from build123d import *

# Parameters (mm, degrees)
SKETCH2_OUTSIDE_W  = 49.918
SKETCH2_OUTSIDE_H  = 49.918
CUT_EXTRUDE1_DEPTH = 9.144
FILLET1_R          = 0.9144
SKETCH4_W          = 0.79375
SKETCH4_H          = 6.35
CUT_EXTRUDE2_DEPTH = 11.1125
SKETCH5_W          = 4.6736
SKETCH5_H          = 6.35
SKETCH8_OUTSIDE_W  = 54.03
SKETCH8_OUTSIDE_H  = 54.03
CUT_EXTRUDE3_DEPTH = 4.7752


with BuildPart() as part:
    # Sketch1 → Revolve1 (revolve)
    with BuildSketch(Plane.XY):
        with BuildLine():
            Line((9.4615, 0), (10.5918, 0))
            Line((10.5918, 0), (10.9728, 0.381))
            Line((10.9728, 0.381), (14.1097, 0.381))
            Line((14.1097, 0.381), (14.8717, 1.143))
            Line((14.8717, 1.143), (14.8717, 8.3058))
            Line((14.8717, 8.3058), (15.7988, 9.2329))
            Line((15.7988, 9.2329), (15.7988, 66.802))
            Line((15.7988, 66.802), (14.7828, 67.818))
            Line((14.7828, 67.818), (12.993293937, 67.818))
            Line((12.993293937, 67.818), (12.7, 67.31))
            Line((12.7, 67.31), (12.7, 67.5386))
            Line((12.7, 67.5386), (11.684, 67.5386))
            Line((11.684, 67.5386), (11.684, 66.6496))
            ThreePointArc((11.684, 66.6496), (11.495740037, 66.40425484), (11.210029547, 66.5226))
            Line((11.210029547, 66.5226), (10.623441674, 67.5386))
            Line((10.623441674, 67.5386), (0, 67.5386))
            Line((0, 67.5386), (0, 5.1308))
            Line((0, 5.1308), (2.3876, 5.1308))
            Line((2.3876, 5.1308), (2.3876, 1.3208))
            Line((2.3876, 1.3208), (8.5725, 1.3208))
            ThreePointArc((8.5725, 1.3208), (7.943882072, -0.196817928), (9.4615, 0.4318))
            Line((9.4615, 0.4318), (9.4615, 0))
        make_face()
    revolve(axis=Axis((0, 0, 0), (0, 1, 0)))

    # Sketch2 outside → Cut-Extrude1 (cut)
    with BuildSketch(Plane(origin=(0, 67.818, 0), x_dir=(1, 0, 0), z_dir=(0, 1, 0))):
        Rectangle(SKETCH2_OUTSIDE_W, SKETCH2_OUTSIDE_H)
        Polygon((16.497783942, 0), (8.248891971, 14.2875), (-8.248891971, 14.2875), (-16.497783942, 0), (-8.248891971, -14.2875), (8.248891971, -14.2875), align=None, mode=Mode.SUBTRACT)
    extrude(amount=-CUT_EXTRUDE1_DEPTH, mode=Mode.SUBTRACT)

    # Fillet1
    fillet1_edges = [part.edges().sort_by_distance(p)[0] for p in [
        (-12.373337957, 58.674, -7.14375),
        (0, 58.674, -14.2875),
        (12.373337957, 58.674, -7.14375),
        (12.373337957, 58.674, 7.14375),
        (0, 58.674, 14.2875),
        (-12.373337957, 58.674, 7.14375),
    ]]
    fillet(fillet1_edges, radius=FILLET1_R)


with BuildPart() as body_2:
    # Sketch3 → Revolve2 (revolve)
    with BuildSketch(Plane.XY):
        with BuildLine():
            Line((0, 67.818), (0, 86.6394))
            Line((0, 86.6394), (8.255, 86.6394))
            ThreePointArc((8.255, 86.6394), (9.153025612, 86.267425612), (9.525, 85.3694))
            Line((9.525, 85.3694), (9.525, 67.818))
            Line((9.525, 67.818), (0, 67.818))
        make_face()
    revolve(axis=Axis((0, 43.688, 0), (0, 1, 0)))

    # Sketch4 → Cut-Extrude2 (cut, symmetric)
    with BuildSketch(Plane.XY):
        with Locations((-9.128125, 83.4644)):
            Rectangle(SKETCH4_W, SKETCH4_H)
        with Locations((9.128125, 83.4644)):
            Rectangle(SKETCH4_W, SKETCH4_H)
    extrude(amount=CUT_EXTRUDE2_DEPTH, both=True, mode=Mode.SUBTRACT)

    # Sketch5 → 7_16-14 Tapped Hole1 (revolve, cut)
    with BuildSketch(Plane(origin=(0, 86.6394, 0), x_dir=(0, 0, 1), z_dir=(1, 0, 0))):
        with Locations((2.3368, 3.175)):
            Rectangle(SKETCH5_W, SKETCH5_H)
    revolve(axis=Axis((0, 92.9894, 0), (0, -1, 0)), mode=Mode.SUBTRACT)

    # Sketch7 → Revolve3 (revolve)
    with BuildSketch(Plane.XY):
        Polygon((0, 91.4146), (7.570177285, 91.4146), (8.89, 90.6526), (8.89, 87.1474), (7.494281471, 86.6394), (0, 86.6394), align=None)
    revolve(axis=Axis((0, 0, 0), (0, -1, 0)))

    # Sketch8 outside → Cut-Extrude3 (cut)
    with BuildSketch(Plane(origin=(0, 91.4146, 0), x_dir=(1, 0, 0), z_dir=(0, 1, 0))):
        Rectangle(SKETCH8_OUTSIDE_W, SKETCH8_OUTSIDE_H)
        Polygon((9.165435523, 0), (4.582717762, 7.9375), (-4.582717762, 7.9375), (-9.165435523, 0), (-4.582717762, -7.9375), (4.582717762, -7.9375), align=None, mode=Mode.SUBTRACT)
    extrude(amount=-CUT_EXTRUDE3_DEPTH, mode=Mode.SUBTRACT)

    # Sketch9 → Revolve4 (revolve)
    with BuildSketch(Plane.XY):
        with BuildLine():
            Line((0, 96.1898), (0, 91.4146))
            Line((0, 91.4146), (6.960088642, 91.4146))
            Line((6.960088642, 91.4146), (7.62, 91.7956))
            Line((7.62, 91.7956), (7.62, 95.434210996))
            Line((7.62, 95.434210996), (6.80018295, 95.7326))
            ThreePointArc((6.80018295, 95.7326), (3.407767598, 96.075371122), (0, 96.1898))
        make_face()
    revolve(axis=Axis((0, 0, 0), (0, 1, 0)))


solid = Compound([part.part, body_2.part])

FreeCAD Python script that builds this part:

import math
import FreeCAD as App
import Part
import Sketcher

V = App.Vector
Q = App.Units.Quantity


def edges_at(feature, points):
    """Names of the edges that pass closest to the given points."""
    edges = feature.Shape.Edges
    near = lambda p: min(range(len(edges)), key=lambda i: edges[i].distToShape(Part.Vertex(*p))[0])
    return sorted({f"Edge{near(p) + 1}" for p in points})


def add_polygon(sketch, points):
    """Adds a closed chain of lines whose ends are joined by coincident constraints."""
    first, n = sketch.GeometryCount, len(points)
    for a, b in zip(points, points[1:] + points[:1]):
        sketch.addGeometry(Part.LineSegment(App.Vector(*a, 0), App.Vector(*b, 0)), False)
    for i in range(n):
        sketch.addConstraint(Sketcher.Constraint("Coincident", first + i, 2, first + (i + 1) % n, 1))

doc = App.newDocument("Part")
body = doc.addObject("PartDesign::Body", "Body")

# Sketch on XY plane
sketch1 = body.newObject("Sketcher::SketchObject", "Sketch")
sketch1.AttachmentSupport = (doc.getObject("XY_Plane"), [""])
sketch1.MapMode = "FlatFace"
sketch1.addGeometry(Part.LineSegment(V(9.4615, 0, 0), V(10.5918, 0, 0)), False)
sketch1.addGeometry(Part.LineSegment(V(10.5918, 0, 0), V(10.9728, 0.381, 0)), False)
sketch1.addGeometry(Part.LineSegment(V(10.9728, 0.381, 0), V(14.1097, 0.381, 0)), False)
sketch1.addGeometry(Part.LineSegment(V(14.1097, 0.381, 0), V(14.8717, 1.143, 0)), False)
sketch1.addGeometry(Part.LineSegment(V(14.8717, 1.143, 0), V(14.8717, 8.3058, 0)), False)
sketch1.addGeometry(Part.LineSegment(V(14.8717, 8.3058, 0), V(15.7988, 9.2329, 0)), False)
sketch1.addGeometry(Part.LineSegment(V(15.7988, 9.2329, 0), V(15.7988, 66.802, 0)), False)
sketch1.addGeometry(Part.LineSegment(V(15.7988, 66.802, 0), V(14.7828, 67.818, 0)), False)
sketch1.addGeometry(Part.LineSegment(V(14.7828, 67.818, 0), V(12.993294, 67.818, 0)), False)
sketch1.addGeometry(Part.LineSegment(V(12.993294, 67.818, 0), V(12.7, 67.31, 0)), False)
sketch1.addGeometry(Part.LineSegment(V(12.7, 67.31, 0), V(12.7, 67.5386, 0)), False)
sketch1.addGeometry(Part.LineSegment(V(12.7, 67.5386, 0), V(11.684, 67.5386, 0)), False)
sketch1.addGeometry(Part.LineSegment(V(11.684, 67.5386, 0), V(11.684, 66.6496, 0)), False)
sketch1.addGeometry(Part.ArcOfCircle(Part.Circle(V(11.43, 66.6496, 0), V(0, 0, 1), 0.254), math.radians(-150), math.radians(0)), False)
sketch1.addGeometry(Part.LineSegment(V(11.21003, 66.5226, 0), V(10.623442, 67.5386, 0)), False)
sketch1.addGeometry(Part.LineSegment(V(10.623442, 67.5386, 0), V(0, 67.5386, 0)), False)
sketch1.addGeometry(Part.LineSegment(V(0, 67.5386, 0), V(0, 5.1308, 0)), False)
sketch1.addGeometry(Part.LineSegment(V(0, 5.1308, 0), V(2.3876, 5.1308, 0)), False)
sketch1.addGeometry(Part.LineSegment(V(2.3876, 5.1308, 0), V(2.3876, 1.3208, 0)), False)
sketch1.addGeometry(Part.LineSegment(V(2.3876, 1.3208, 0), V(8.5725, 1.3208, 0)), False)
sketch1.addGeometry(Part.ArcOfCircle(Part.Circle(V(8.5725, 0.4318, 0), V(0, 0, 1), 0.889), math.radians(90), math.radians(360)), False)
sketch1.addGeometry(Part.LineSegment(V(9.4615, 0.4318, 0), V(9.4615, 0, 0)), False)
sketch1.addConstraint(Sketcher.Constraint("Coincident", 0, 2, 1, 1))
sketch1.addConstraint(Sketcher.Constraint("Coincident", 1, 2, 2, 1))
sketch1.addConstraint(Sketcher.Constraint("Coincident", 2, 2, 3, 1))
sketch1.addConstraint(Sketcher.Constraint("Coincident", 3, 2, 4, 1))
sketch1.addConstraint(Sketcher.Constraint("Coincident", 4, 2, 5, 1))
sketch1.addConstraint(Sketcher.Constraint("Coincident", 5, 2, 6, 1))
sketch1.addConstraint(Sketcher.Constraint("Coincident", 6, 2, 7, 1))
sketch1.addConstraint(Sketcher.Constraint("Coincident", 7, 2, 8, 1))
sketch1.addConstraint(Sketcher.Constraint("Coincident", 8, 2, 9, 1))
sketch1.addConstraint(Sketcher.Constraint("Coincident", 9, 2, 10, 1))
sketch1.addConstraint(Sketcher.Constraint("Coincident", 10, 2, 11, 1))
sketch1.addConstraint(Sketcher.Constraint("Coincident", 11, 2, 12, 1))
sketch1.addConstraint(Sketcher.Constraint("Tangent", 12, 2, 13, 2))
sketch1.addConstraint(Sketcher.Constraint("Tangent", 13, 1, 14, 1))
sketch1.addConstraint(Sketcher.Constraint("Coincident", 14, 2, 15, 1))
sketch1.addConstraint(Sketcher.Constraint("Coincident", 15, 2, 16, 1))
sketch1.addConstraint(Sketcher.Constraint("Coincident", 16, 2, 17, 1))
sketch1.addConstraint(Sketcher.Constraint("Coincident", 17, 2, 18, 1))
sketch1.addConstraint(Sketcher.Constraint("Coincident", 18, 2, 19, 1))
sketch1.addConstraint(Sketcher.Constraint("Tangent", 19, 2, 20, 1))
sketch1.addConstraint(Sketcher.Constraint("Tangent", 20, 2, 21, 1))
sketch1.addConstraint(Sketcher.Constraint("Coincident", 21, 2, 0, 1))
sketch1.addConstraint(Sketcher.Constraint("Horizontal", 0))
sketch1.addConstraint(Sketcher.Constraint("Horizontal", 2))
sketch1.addConstraint(Sketcher.Constraint("Vertical", 4))
sketch1.addConstraint(Sketcher.Constraint("Vertical", 6))
sketch1.addConstraint(Sketcher.Constraint("Horizontal", 8))
sketch1.addConstraint(Sketcher.Constraint("Vertical", 10))
sketch1.addConstraint(Sketcher.Constraint("Horizontal", 11))
sketch1.addConstraint(Sketcher.Constraint("Vertical", 12))
sketch1.addConstraint(Sketcher.Constraint("Horizontal", 15))
sketch1.addConstraint(Sketcher.Constraint("Vertical", 16))
sketch1.addConstraint(Sketcher.Constraint("Horizontal", 17))
sketch1.addConstraint(Sketcher.Constraint("Vertical", 18))
sketch1.addConstraint(Sketcher.Constraint("Horizontal", 19))
sketch1.addConstraint(Sketcher.Constraint("Vertical", 21))
sketch1.addConstraint(Sketcher.Constraint("PointOnObject", 0, 2, -1))
sketch1.addConstraint(Sketcher.Constraint("PointOnObject", 15, 2, -2))
sketch1.addConstraint(Sketcher.Constraint("Parallel", 1, 3))
sketch1.addConstraint(Sketcher.Constraint("Parallel", 3, 5))
sketch1.addConstraint(Sketcher.Constraint("Perpendicular", 5, 7))
sketch1.addConstraint(Sketcher.Constraint("Horizontal", 11, 2, 14, 2))
sketch1.addConstraint(Sketcher.Constraint("Radius", 13, Q("0.01 in")))
sketch1.addConstraint(Sketcher.Constraint("Angle", 1, Q("45 deg")))
sketch1.addConstraint(Sketcher.Constraint("Angle", 9, Q("-120 deg")))
sketch1.addConstraint(Sketcher.Constraint("Angle", 14, Q("120 deg")))
sketch1.addConstraint(Sketcher.Constraint("Radius", 20, Q("0.035 in")))
sketch1.addConstraint(Sketcher.Constraint("DistanceX", 11, 2, 11, 1, Q("0.04 in")))
sketch1.addConstraint(Sketcher.Constraint("DistanceY", 18, 2, 18, 1, Q("0.15 in")))
sketch1.addConstraint(Sketcher.Constraint("DistanceX", -1, 1, 9, 2, Q("0.5 in")))
sketch1.addConstraint(Sketcher.Constraint("DistanceX", 17, 1, 17, 2, Q("0.094 in")))
sketch1.addConstraint(Sketcher.Constraint("DistanceY", 4, 1, 4, 2, Q("0.282 in")))
sketch1.addConstraint(Sketcher.Constraint("DistanceY", 10, 1, 10, 2, Q("0.009 in")))
sketch1.addConstraint(Sketcher.Constraint("DistanceY", 12, 2, 12, 1, Q("0.035 in")))
sketch1.addConstraint(Sketcher.Constraint("DistanceY", 16, 2, 16, 1, Q("2.457 in")))
sketch1.addConstraint(Sketcher.Constraint("DistanceY", 21, 2, 21, 1, Q("0.017 in")))
sketch1.addConstraint(Sketcher.Constraint("DistanceY", -1, 1, 6, 2, Q("2.63 in")))
sketch1.addConstraint(Sketcher.Constraint("DistanceY", -1, 1, 7, 2, Q("2.67 in")))
sketch1.addConstraint(Sketcher.Constraint("DistanceX", 2, 2, 3, 2, Q("0.03 in")))
sketch1.addConstraint(Sketcher.Constraint("DistanceY", 20, 3, 4, 2, Q("0.31 in")))
sketch1.addConstraint(Sketcher.Constraint("DistanceX", 1, 2, 5, 2, Q("0.19 in")))
sketch1.addConstraint(Sketcher.Constraint("DistanceX", 0, 1, 0, 2, Q("0.0445 in")))
sketch1.addConstraint(Sketcher.Constraint("DistanceX", 2, 1, 2, 2, Q("0.1235 in")))
sketch1.addConstraint(Sketcher.Constraint("DistanceX", 19, 1, 19, 2, Q("0.2435 in")))
revolution = body.newObject("PartDesign::Revolution", "Revolution")
revolution.Profile = sketch1
revolution.ReferenceAxis = (sketch1, ["V_Axis"])
revolution.Angle = 360

# Sketch on XZ plane
sketch2 = body.newObject("Sketcher::SketchObject", "Sketch001")
sketch2.AttachmentSupport = (doc.getObject("XZ_Plane"), [""])
sketch2.MapMode = "FlatFace"
sketch2.AttachmentOffset = App.Placement(V(0, 0, -2.67 * 25.4), App.Rotation())
add_polygon(sketch2, [(-24.959, -24.959), (-24.959, 24.959), (24.959, 24.959), (24.959, -24.959)])  # lines 0-3
add_polygon(sketch2, [(8.248892, -14.2875), (16.497784, 0), (8.248892, 14.2875), (-8.248892, 14.2875), (-16.497784, 0), (-8.248892, -14.2875)])  # lines 4-9
sketch2.addConstraint(Sketcher.Constraint("Vertical", 0))
sketch2.addConstraint(Sketcher.Constraint("Horizontal", 1))
sketch2.addConstraint(Sketcher.Constraint("Vertical", 2))
sketch2.addConstraint(Sketcher.Constraint("Horizontal", 3))
sketch2.addConstraint(Sketcher.Constraint("Horizontal", 6))
sketch2.addConstraint(Sketcher.Constraint("Horizontal", 9))
sketch2.addConstraint(Sketcher.Constraint("Symmetric", 0, 2, 2, 2, -1, 1))
sketch2.addConstraint(Sketcher.Constraint("Symmetric", 4, 2, 7, 2, -1, 1))
sketch2.addConstraint(Sketcher.Constraint("Symmetric", 5, 2, 8, 2, -1, 1))
sketch2.addConstraint(Sketcher.Constraint("PointOnObject", 4, 2, -1))
sketch2.addConstraint(Sketcher.Constraint("Parallel", 4, 7))
sketch2.addConstraint(Sketcher.Constraint("Vertical", 6, 2, 8, 2))
sketch2.addConstraint(Sketcher.Constraint("Equal", 3, 0))
sketch2.addConstraint(Sketcher.Constraint("Angle", 4, Q("60 deg")))
sketch2.addConstraint(Sketcher.Constraint("DistanceY", -1, 1, 5, 2, Q("0.5625 in")))
sketch2.addConstraint(Sketcher.Constraint("DistanceX", 1, 1, 1, 2, 49.918))
sketch2.addConstraint(Sketcher.Constraint("DistanceX", 6, 2, 6, 1, 16.497784))
pocket1 = body.newObject("PartDesign::Pocket", "Pocket")
pocket1.Profile = sketch2
pocket1.Length = Q("0.36 in")
pocket1.Reversed = True
doc.recompute()

fillet = body.newObject("PartDesign::Fillet", "Fillet")
fillet.Base = (pocket1, edges_at(pocket1, [
    (-12.373, 58.674, -7.144),
    (0, 58.674, -14.287),
    (12.373, 58.674, -7.144),
    (12.373, 58.674, 7.144),
    (0, 58.674, 14.287),
    (-12.373, 58.674, 7.144),
]))
fillet.Radius = Q("0.036 in")
body2 = doc.addObject("PartDesign::Body", "Body001")

# Sketch on XY plane
sketch3 = body2.newObject("Sketcher::SketchObject", "Sketch002")
sketch3.AttachmentSupport = (doc.getObject("XY_Plane001"), [""])
sketch3.MapMode = "FlatFace"
sketch3.addGeometry(Part.LineSegment(V(0, 86.6394, 0), V(0, 67.818, 0)), False)
sketch3.addGeometry(Part.LineSegment(V(0, 67.818, 0), V(9.525, 67.818, 0)), False)
sketch3.addGeometry(Part.LineSegment(V(9.525, 67.818, 0), V(9.525, 85.3694, 0)), False)
sketch3.addGeometry(Part.ArcOfCircle(Part.Circle(V(8.255, 85.3694, 0), V(0, 0, 1), 1.27), math.radians(0), math.radians(90)), False)
sketch3.addGeometry(Part.LineSegment(V(8.255, 86.6394, 0), V(0, 86.6394, 0)), False)
sketch3.addConstraint(Sketcher.Constraint("Coincident", 0, 2, 1, 1))
sketch3.addConstraint(Sketcher.Constraint("Coincident", 1, 2, 2, 1))
sketch3.addConstraint(Sketcher.Constraint("Tangent", 2, 2, 3, 1))
sketch3.addConstraint(Sketcher.Constraint("Tangent", 3, 2, 4, 1))
sketch3.addConstraint(Sketcher.Constraint("Coincident", 4, 2, 0, 1))
sketch3.addConstraint(Sketcher.Constraint("Vertical", 0))
sketch3.addConstraint(Sketcher.Constraint("Horizontal", 1))
sketch3.addConstraint(Sketcher.Constraint("Vertical", 2))
sketch3.addConstraint(Sketcher.Constraint("Horizontal", 4))
sketch3.addConstraint(Sketcher.Constraint("PointOnObject", 0, 2, -2))
sketch3.addConstraint(Sketcher.Constraint("Radius", 3, Q("0.05 in")))
sketch3.addConstraint(Sketcher.Constraint("DistanceX", 1, 1, 1, 2, Q("0.375 in")))
sketch3.addConstraint(Sketcher.Constraint("DistanceY", 0, 2, 0, 1, Q("0.741 in")))
sketch3.addConstraint(Sketcher.Constraint("DistanceY", -1, 1, 0, 2, Q("2.67 in")))
revolution2 = body2.newObject("PartDesign::Revolution", "Revolution001")
revolution2.Profile = sketch3
revolution2.ReferenceAxis = (sketch3, ["V_Axis"])
revolution2.Angle = 360

# Sketch on XY plane
sketch4 = body2.newObject("Sketcher::SketchObject", "Sketch003")
sketch4.AttachmentSupport = (doc.getObject("XY_Plane001"), [""])
sketch4.MapMode = "FlatFace"
add_polygon(sketch4, [(-9.525, 86.6394), (-9.525, 80.2894), (-8.73125, 80.2894), (-8.73125, 86.6394)])  # lines 0-3
add_polygon(sketch4, [(8.73125, 86.6394), (8.73125, 80.2894), (9.525, 80.2894), (9.525, 86.6394)])  # lines 4-7
sketch4.addConstraint(Sketcher.Constraint("Vertical", 0))
sketch4.addConstraint(Sketcher.Constraint("Horizontal", 1))
sketch4.addConstraint(Sketcher.Constraint("Vertical", 2))
sketch4.addConstraint(Sketcher.Constraint("Horizontal", 3))
sketch4.addConstraint(Sketcher.Constraint("Vertical", 4))
sketch4.addConstraint(Sketcher.Constraint("Horizontal", 5))
sketch4.addConstraint(Sketcher.Constraint("Vertical", 6))
sketch4.addConstraint(Sketcher.Constraint("Horizontal", 7))
sketch4.addConstraint(Sketcher.Constraint("Symmetric", 1, 2, 4, 2, -2))
sketch4.addConstraint(Sketcher.Constraint("Symmetric", 3, 2, 6, 2, -2))
sketch4.addConstraint(Sketcher.Constraint("DistanceY", 0, 2, 0, 1, Q("0.25 in")))
sketch4.addConstraint(Sketcher.Constraint("DistanceX", 1, 1, 1, 2, Q("0.03125 in")))
sketch4.addConstraint(Sketcher.Constraint("DistanceX", 0, 2, 5, 2, Q("0.75 in")))
sketch4.addConstraint(Sketcher.Constraint("DistanceY", -1, 1, 0, 2, Q("3.161 in")))
pocket2 = body2.newObject("PartDesign::Pocket", "Pocket001")
pocket2.Profile = sketch4
pocket2.Length = Q("0.875 in")
pocket2.Midplane = True

# Sketch on YZ plane
sketch5 = body2.newObject("Sketcher::SketchObject", "Sketch004")
sketch5.AttachmentSupport = (doc.getObject("YZ_Plane001"), [""])
sketch5.MapMode = "FlatFace"
add_polygon(sketch5, [(80.2894, 0), (86.6394, 0), (86.6394, 4.6736), (80.2894, 4.6736)])  # lines 0-3
sketch5.addConstraint(Sketcher.Constraint("Horizontal", 0))
sketch5.addConstraint(Sketcher.Constraint("Vertical", 1))
sketch5.addConstraint(Sketcher.Constraint("Horizontal", 2))
sketch5.addConstraint(Sketcher.Constraint("Vertical", 3))
sketch5.addConstraint(Sketcher.Constraint("PointOnObject", 0, 2, -1))
sketch5.addConstraint(Sketcher.Constraint("DistanceX", 0, 1, 0, 2, Q("0.25 in")))
sketch5.addConstraint(Sketcher.Constraint("DistanceY", 1, 1, 1, 2, Q("0.184 in")))
sketch5.addConstraint(Sketcher.Constraint("DistanceX", -1, 1, 0, 2, Q("3.411 in")))
groove = body2.newObject("PartDesign::Groove", "Groove")
groove.Profile = sketch5
groove.ReferenceAxis = (sketch5, ["H_Axis"])
groove.Angle = 360

# Sketch on XY plane
sketch6 = body2.newObject("Sketcher::SketchObject", "Sketch005")
sketch6.AttachmentSupport = (doc.getObject("XY_Plane001"), [""])
sketch6.MapMode = "FlatFace"
add_polygon(sketch6, [(7.570177, 91.4146), (0, 91.4146), (0, 86.6394), (7.494281, 86.6394), (8.89, 87.1474), (8.89, 90.6526)])  # lines 0-5
sketch6.addConstraint(Sketcher.Constraint("Horizontal", 0))
sketch6.addConstraint(Sketcher.Constraint("Vertical", 1))
sketch6.addConstraint(Sketcher.Constraint("Horizontal", 2))
sketch6.addConstraint(Sketcher.Constraint("Vertical", 4))
sketch6.addConstraint(Sketcher.Constraint("PointOnObject", 0, 2, -2))
sketch6.addConstraint(Sketcher.Constraint("Angle", 3, Q("20 deg")))
sketch6.addConstraint(Sketcher.Constraint("Angle", 5, Q("150 deg")))
sketch6.addConstraint(Sketcher.Constraint("Distance", 5, Q("0.06 in")))
sketch6.addConstraint(Sketcher.Constraint("DistanceY", 1, 2, 1, 1, Q("0.188 in")))
sketch6.addConstraint(Sketcher.Constraint("DistanceY", 4, 1, 4, 2, Q("0.138 in")))
sketch6.addConstraint(Sketcher.Constraint("DistanceX", -1, 1, 3, 2, Q("0.35 in")))
sketch6.addConstraint(Sketcher.Constraint("DistanceY", -1, 1, 0, 2, Q("3.599 in")))
revolution3 = body2.newObject("PartDesign::Revolution", "Revolution002")
revolution3.Profile = sketch6
revolution3.ReferenceAxis = (sketch6, ["V_Axis"])
revolution3.Angle = 360

# Sketch on XZ plane
sketch7 = body2.newObject("Sketcher::SketchObject", "Sketch006")
sketch7.AttachmentSupport = (doc.getObject("XZ_Plane001"), [""])
sketch7.MapMode = "FlatFace"
sketch7.AttachmentOffset = App.Placement(V(0, 0, -3.599 * 25.4), App.Rotation())
add_polygon(sketch7, [(-27.015, -27.015), (-27.015, 27.015), (27.015, 27.015), (27.015, -27.015)])  # lines 0-3
add_polygon(sketch7, [(4.582718, -7.9375), (9.165436, 0), (4.582718, 7.9375), (-4.582718, 7.9375), (-9.165436, 0), (-4.582718, -7.9375)])  # lines 4-9
sketch7.addConstraint(Sketcher.Constraint("Vertical", 0))
sketch7.addConstraint(Sketcher.Constraint("Horizontal", 1))
sketch7.addConstraint(Sketcher.Constraint("Vertical", 2))
sketch7.addConstraint(Sketcher.Constraint("Horizontal", 3))
sketch7.addConstraint(Sketcher.Constraint("Horizontal", 6))
sketch7.addConstraint(Sketcher.Constraint("Horizontal", 9))
sketch7.addConstraint(Sketcher.Constraint("Symmetric", 0, 2, 2, 2, -1, 1))
sketch7.addConstraint(Sketcher.Constraint("Symmetric", 4, 2, 7, 2, -1, 1))
sketch7.addConstraint(Sketcher.Constraint("Symmetric", 5, 2, 8, 2, -1, 1))
sketch7.addConstraint(Sketcher.Constraint("PointOnObject", 4, 2, -1))
sketch7.addConstraint(Sketcher.Constraint("Parallel", 4, 7))
sketch7.addConstraint(Sketcher.Constraint("Vertical", 6, 2, 8, 2))
sketch7.addConstraint(Sketcher.Constraint("Equal", 3, 0))
sketch7.addConstraint(Sketcher.Constraint("Angle", 4, Q("60 deg")))
sketch7.addConstraint(Sketcher.Constraint("DistanceY", -1, 1, 5, 2, Q("0.3125 in")))
sketch7.addConstraint(Sketcher.Constraint("DistanceX", 1, 1, 1, 2, 54.03))
sketch7.addConstraint(Sketcher.Constraint("DistanceX", 6, 2, 6, 1, 9.165436))
pocket3 = body2.newObject("PartDesign::Pocket", "Pocket002")
pocket3.Profile = sketch7
pocket3.Length = Q("0.188 in")
pocket3.Reversed = True

# Sketch on XY plane
sketch8 = body2.newObject("Sketcher::SketchObject", "Sketch007")
sketch8.AttachmentSupport = (doc.getObject("XY_Plane001"), [""])
sketch8.MapMode = "FlatFace"
sketch8.addGeometry(Part.LineSegment(V(0, 96.1898, 0), V(0, 91.4146, 0)), False)
sketch8.addGeometry(Part.LineSegment(V(0, 91.4146, 0), V(6.960089, 91.4146, 0)), False)
sketch8.addGeometry(Part.LineSegment(V(6.960089, 91.4146, 0), V(7.62, 91.7956, 0)), False)
sketch8.addGeometry(Part.LineSegment(V(7.62, 91.7956, 0), V(7.62, 95.434211, 0)), False)
sketch8.addGeometry(Part.LineSegment(V(7.62, 95.434211, 0), V(6.800183, 95.7326, 0)), False)
sketch8.addGeometry(Part.ArcOfCircle(Part.Circle(V(0, 45.3898, 0), V(0, 0, 1), 50.8), math.radians(82.307188), math.radians(90)), False)
sketch8.addConstraint(Sketcher.Constraint("Coincident", 0, 2, 1, 1))
sketch8.addConstraint(Sketcher.Constraint("Coincident", 1, 2, 2, 1))
sketch8.addConstraint(Sketcher.Constraint("Coincident", 2, 2, 3, 1))
sketch8.addConstraint(Sketcher.Constraint("Coincident", 3, 2, 4, 1))
sketch8.addConstraint(Sketcher.Constraint("Coincident", 4, 2, 5, 1))
sketch8.addConstraint(Sketcher.Constraint("Coincident", 5, 2, 0, 1))
sketch8.addConstraint(Sketcher.Constraint("Vertical", 0))
sketch8.addConstraint(Sketcher.Constraint("Horizontal", 1))
sketch8.addConstraint(Sketcher.Constraint("Vertical", 3))
sketch8.addConstraint(Sketcher.Constraint("PointOnObject", 5, 3, -2))
sketch8.addConstraint(Sketcher.Constraint("PointOnObject", 0, 2, -2))
sketch8.addConstraint(Sketcher.Constraint("Radius", 5, Q("2 in")))
sketch8.addConstraint(Sketcher.Constraint("Angle", 2, Q("30 deg")))
sketch8.addConstraint(Sketcher.Constraint("Angle", 4, Q("160 deg")))
sketch8.addConstraint(Sketcher.Constraint("DistanceX", -1, 1, 2, 2, Q("0.3 in")))
sketch8.addConstraint(Sketcher.Constraint("Distance", 2, Q("0.03 in")))
sketch8.addConstraint(Sketcher.Constraint("DistanceY", 0, 2, 0, 1, Q("0.188 in")))
sketch8.addConstraint(Sketcher.Constraint("DistanceY", 1, 2, 4, 2, Q("0.17 in")))
sketch8.addConstraint(Sketcher.Constraint("DistanceY", -1, 1, 5, 3, Q("1.787 in")))
revolution4 = body2.newObject("PartDesign::Revolution", "Revolution003")
revolution4.Profile = sketch8
revolution4.ReferenceAxis = (sketch8, ["V_Axis"])
revolution4.Angle = 360

doc.recompute()
